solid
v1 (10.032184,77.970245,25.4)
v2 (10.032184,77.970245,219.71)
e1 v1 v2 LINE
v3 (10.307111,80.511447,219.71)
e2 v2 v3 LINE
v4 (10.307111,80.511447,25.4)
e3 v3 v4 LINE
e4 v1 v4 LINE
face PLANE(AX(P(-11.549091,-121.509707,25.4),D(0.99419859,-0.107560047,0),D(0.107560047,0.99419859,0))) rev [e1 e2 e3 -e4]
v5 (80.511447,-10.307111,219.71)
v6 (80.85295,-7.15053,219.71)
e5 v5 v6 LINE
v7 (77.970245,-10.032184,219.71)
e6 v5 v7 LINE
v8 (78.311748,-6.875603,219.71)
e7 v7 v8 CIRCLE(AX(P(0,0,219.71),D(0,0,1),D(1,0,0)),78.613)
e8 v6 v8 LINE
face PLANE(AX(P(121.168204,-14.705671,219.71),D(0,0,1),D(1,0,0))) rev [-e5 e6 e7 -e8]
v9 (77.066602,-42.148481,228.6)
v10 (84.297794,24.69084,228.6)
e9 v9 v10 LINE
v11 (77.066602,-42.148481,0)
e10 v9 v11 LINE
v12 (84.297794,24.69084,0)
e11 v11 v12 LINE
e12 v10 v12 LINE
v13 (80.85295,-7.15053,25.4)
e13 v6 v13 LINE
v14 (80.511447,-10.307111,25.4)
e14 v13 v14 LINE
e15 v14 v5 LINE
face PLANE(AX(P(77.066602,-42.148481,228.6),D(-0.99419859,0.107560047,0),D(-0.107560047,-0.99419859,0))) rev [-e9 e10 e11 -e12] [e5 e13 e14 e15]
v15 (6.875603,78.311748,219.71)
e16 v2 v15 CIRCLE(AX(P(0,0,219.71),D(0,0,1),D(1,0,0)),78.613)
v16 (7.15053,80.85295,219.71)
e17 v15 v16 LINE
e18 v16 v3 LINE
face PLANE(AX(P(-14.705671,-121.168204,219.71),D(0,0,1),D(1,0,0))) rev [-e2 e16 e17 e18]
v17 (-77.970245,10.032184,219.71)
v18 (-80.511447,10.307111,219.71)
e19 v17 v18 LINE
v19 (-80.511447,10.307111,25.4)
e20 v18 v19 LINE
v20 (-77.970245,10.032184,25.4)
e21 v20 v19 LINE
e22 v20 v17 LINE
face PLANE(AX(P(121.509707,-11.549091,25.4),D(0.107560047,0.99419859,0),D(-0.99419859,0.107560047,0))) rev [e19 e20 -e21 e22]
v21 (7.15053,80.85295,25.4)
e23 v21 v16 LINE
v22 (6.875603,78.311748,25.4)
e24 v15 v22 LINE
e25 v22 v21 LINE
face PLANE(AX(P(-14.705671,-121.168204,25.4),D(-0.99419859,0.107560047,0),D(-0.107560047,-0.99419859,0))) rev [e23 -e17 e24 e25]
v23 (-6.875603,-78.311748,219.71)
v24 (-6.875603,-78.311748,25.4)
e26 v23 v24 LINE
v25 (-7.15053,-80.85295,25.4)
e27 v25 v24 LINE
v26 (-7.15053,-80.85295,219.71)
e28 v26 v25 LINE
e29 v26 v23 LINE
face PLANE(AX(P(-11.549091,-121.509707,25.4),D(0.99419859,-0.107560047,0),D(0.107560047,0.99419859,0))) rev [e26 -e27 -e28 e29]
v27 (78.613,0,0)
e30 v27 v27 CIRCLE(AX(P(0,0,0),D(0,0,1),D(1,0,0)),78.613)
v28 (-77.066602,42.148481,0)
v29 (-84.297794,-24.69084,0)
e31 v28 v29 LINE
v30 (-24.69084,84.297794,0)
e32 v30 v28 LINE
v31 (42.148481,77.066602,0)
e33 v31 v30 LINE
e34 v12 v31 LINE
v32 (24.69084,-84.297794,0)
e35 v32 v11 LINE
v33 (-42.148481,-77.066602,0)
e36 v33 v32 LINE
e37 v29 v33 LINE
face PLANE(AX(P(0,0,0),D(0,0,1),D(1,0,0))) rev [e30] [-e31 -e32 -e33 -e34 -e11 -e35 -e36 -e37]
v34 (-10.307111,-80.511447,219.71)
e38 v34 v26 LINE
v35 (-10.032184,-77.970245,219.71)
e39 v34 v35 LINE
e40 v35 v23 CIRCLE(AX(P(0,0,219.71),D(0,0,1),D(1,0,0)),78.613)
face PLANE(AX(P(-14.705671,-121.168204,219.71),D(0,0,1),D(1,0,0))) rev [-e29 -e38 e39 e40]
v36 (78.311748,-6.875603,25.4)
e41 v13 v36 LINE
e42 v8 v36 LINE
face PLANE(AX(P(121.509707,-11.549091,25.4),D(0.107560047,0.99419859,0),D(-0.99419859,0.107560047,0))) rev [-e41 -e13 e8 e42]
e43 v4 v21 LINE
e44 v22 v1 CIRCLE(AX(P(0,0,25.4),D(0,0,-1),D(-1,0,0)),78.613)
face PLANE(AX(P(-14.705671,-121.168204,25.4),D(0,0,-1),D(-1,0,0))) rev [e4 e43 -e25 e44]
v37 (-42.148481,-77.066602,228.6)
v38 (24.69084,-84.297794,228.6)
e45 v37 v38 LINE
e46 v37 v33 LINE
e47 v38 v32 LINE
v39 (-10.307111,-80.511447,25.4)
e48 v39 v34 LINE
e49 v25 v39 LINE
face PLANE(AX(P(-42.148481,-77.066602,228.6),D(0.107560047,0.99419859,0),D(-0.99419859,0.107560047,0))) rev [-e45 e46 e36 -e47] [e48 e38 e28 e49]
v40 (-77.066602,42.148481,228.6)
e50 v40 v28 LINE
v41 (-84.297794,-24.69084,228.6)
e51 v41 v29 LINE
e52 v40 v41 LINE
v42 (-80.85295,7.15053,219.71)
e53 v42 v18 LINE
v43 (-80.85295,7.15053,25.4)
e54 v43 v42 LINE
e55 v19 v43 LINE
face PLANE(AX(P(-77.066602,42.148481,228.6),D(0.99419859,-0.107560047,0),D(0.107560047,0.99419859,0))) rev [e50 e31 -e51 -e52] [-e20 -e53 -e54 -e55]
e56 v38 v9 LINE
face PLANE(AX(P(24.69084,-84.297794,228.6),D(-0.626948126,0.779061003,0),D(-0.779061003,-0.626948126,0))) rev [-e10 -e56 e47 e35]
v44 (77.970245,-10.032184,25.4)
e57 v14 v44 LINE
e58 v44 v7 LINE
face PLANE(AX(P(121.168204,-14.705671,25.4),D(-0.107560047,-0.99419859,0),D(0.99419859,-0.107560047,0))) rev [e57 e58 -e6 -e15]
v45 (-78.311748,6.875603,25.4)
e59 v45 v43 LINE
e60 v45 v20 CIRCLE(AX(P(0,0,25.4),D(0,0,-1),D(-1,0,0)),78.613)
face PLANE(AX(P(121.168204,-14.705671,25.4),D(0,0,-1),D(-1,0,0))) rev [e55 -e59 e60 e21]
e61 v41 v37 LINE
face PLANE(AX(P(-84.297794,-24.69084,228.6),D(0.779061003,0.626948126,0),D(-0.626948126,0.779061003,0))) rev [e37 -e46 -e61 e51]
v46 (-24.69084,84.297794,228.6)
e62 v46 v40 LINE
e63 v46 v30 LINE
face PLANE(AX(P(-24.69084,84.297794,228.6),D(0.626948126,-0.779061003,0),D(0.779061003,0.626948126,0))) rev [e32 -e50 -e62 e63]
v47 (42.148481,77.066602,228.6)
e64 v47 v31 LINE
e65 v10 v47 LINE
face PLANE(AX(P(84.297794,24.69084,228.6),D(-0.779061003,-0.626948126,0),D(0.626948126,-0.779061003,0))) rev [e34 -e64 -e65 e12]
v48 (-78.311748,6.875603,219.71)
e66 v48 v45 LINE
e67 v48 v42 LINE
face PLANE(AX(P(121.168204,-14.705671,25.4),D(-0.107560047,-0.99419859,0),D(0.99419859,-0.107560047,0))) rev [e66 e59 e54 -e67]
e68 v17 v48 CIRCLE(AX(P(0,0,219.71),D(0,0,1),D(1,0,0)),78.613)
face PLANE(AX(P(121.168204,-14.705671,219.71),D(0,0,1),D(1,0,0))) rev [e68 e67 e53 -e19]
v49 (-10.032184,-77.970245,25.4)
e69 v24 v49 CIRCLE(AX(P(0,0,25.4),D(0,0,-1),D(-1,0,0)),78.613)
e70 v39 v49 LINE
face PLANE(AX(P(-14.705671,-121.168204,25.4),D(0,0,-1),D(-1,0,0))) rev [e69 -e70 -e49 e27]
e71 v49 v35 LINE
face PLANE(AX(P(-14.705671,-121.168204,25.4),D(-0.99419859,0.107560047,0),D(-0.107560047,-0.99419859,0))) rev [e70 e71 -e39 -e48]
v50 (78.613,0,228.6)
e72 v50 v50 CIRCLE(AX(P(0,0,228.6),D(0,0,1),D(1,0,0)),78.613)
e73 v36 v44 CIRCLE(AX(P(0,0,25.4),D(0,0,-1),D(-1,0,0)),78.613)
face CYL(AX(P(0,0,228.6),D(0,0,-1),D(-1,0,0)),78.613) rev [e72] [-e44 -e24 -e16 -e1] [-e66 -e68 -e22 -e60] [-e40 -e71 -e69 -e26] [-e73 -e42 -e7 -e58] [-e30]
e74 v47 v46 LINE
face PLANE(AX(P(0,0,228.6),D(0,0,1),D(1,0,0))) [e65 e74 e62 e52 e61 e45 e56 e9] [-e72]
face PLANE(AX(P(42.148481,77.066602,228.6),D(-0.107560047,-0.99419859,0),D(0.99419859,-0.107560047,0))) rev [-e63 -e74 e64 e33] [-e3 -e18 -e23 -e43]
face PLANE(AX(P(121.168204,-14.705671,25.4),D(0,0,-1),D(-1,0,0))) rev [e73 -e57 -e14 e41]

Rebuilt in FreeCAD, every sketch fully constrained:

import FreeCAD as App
import Part
import Sketcher

V = App.Vector
Q = App.Units.Quantity


def add_polygon(sketch, points):
    """Adds a closed chain of lines whose ends are joined by coincident constraints."""
    first, n = sketch.GeometryCount, len(points)
    for a, b in zip(points, points[1:] + points[:1]):
        sketch.addGeometry(Part.LineSegment(App.Vector(*a, 0), App.Vector(*b, 0)), False)
    for i in range(n):
        sketch.addConstraint(Sketcher.Constraint("Coincident", first + i, 2, first + (i + 1) % n, 1))

doc = App.newDocument("Part")
body = doc.addObject("PartDesign::Body", "Body")

# Sketch on XY plane
sketch1 = doc.addObject("Sketcher::SketchObject", "Sketch")
body.addObject(sketch1)
sketch1.AttachmentSupport = (doc.XY_Plane, [""])
sketch1.MapMode = "FlatFace"
add_polygon(sketch1, [(77, -42), (84, 25), (42, 77), (-25, 84), (-77, 42), (-84, -25), (-42, -77), (25, -84)])  # lines 0-7
sketch1.addGeometry(Part.Circle(V(0, 0, 0), V(0, 0, 1), 79), False)  # 8
sketch1.addConstraint([
    Sketcher.Constraint("Coincident", 8, 3, -1, 1),
    Sketcher.Constraint("Symmetric", 0, 2, 4, 2, -1, 1),
    Sketcher.Constraint("Symmetric", 1, 2, 5, 2, -1, 1),
    Sketcher.Constraint("Symmetric", 2, 2, 6, 2, -1, 1),
    Sketcher.Constraint("Symmetric", 3, 2, 7, 2, -1, 1),
    Sketcher.Constraint("Perpendicular", 0, 2),
    Sketcher.Constraint("Perpendicular", 1, 3),
    Sketcher.Constraint("Equal", 0, 1),
    Sketcher.Constraint("Equal", 1, 2),
    Sketcher.Constraint("Equal", 2, 3),
    Sketcher.Constraint("Diameter", 8, Q("6.19 in")),
    Sketcher.Constraint("DistanceX", 4, 2, 1, 2, Q("4.9781998 in")),
    Sketcher.Constraint("DistanceY", -1, 1, 0, 2, 24.69084),
    Sketcher.Constraint("DistanceX", -1, 1, 1, 2, 42.148481),
])
pad1 = doc.addObject("PartDesign::Pad", "Pad")
body.addObject(pad1)
pad1.Profile = sketch1
pad1.Length = Q("9 in")

# Sketch on an angled plane
sketch2 = doc.addObject("Sketcher::SketchObject", "Sketch001")
body.addObject(sketch2)
sketch2.Placement = App.Placement(V(8.72882, 80.682198, 0), App.Rotation(V(0.99419859, -0.107560047, 0), V(0, 0, -1), V(0.107560047, 0.99419859, 0), "ZXY"))
add_polygon(sketch2, [(-1.6, -25.4), (-1.6, -219.7), (1.6, -219.7), (1.6, -25.4)])  # lines 0-3
sketch2.addConstraint([
    Sketcher.Constraint("Vertical", 0),
    Sketcher.Constraint("Horizontal", 1),
    Sketcher.Constraint("Vertical", 2),
    Sketcher.Constraint("Horizontal", 3),
    Sketcher.Constraint("DistanceY", 2, 2, -1, 1, Q("1 in")),
    Sketcher.Constraint("DistanceY", 0, 2, 0, 1, Q("7.65 in")),
    Sketcher.Constraint("DistanceX", 1, 1, 1, 2, Q("0.125 in")),
    Sketcher.Constraint("DistanceX", 0, 2, -1, 1, Q("0.0625 in")),
])
pocket1 = doc.addObject("PartDesign::Pocket", "Pocket")
body.addObject(pocket1)
pocket1.Profile = sketch2
pocket1.Length = Q("8 in")

# Sketch on an angled plane
sketch3 = doc.addObject("Sketcher::SketchObject", "Sketch002")
body.addObject(sketch3)
sketch3.Placement = App.Placement(V(-80.682198, 8.72882, 0), App.Rotation(V(0, 0, 1), V(0.107560047, 0.99419859, 0), V(-0.99419859, 0.107560047, 0), "ZXY"))
add_polygon(sketch3, [(25.4, 1.6), (25.4, -1.6), (219.7, -1.6), (219.7, 1.6)])  # lines 0-3
sketch3.addConstraint([
    Sketcher.Constraint("Vertical", 0),
    Sketcher.Constraint("Horizontal", 1),
    Sketcher.Constraint("Vertical", 2),
    Sketcher.Constraint("Horizontal", 3),
    Sketcher.Constraint("DistanceX", -1, 1, 0, 2, Q("1 in")),
    Sketcher.Constraint("DistanceX", 1, 1, 1, 2, Q("7.65 in")),
    Sketcher.Constraint("DistanceY", 0, 2, 0, 1, Q("0.125 in")),
    Sketcher.Constraint("DistanceY", 0, 2, -1, 1, Q("0.0625 in")),
])
pocket2 = doc.addObject("PartDesign::Pocket", "Pocket001")
body.addObject(pocket2)
pocket2.Profile = sketch3
pocket2.Length = Q("8 in")

doc.recompute()
